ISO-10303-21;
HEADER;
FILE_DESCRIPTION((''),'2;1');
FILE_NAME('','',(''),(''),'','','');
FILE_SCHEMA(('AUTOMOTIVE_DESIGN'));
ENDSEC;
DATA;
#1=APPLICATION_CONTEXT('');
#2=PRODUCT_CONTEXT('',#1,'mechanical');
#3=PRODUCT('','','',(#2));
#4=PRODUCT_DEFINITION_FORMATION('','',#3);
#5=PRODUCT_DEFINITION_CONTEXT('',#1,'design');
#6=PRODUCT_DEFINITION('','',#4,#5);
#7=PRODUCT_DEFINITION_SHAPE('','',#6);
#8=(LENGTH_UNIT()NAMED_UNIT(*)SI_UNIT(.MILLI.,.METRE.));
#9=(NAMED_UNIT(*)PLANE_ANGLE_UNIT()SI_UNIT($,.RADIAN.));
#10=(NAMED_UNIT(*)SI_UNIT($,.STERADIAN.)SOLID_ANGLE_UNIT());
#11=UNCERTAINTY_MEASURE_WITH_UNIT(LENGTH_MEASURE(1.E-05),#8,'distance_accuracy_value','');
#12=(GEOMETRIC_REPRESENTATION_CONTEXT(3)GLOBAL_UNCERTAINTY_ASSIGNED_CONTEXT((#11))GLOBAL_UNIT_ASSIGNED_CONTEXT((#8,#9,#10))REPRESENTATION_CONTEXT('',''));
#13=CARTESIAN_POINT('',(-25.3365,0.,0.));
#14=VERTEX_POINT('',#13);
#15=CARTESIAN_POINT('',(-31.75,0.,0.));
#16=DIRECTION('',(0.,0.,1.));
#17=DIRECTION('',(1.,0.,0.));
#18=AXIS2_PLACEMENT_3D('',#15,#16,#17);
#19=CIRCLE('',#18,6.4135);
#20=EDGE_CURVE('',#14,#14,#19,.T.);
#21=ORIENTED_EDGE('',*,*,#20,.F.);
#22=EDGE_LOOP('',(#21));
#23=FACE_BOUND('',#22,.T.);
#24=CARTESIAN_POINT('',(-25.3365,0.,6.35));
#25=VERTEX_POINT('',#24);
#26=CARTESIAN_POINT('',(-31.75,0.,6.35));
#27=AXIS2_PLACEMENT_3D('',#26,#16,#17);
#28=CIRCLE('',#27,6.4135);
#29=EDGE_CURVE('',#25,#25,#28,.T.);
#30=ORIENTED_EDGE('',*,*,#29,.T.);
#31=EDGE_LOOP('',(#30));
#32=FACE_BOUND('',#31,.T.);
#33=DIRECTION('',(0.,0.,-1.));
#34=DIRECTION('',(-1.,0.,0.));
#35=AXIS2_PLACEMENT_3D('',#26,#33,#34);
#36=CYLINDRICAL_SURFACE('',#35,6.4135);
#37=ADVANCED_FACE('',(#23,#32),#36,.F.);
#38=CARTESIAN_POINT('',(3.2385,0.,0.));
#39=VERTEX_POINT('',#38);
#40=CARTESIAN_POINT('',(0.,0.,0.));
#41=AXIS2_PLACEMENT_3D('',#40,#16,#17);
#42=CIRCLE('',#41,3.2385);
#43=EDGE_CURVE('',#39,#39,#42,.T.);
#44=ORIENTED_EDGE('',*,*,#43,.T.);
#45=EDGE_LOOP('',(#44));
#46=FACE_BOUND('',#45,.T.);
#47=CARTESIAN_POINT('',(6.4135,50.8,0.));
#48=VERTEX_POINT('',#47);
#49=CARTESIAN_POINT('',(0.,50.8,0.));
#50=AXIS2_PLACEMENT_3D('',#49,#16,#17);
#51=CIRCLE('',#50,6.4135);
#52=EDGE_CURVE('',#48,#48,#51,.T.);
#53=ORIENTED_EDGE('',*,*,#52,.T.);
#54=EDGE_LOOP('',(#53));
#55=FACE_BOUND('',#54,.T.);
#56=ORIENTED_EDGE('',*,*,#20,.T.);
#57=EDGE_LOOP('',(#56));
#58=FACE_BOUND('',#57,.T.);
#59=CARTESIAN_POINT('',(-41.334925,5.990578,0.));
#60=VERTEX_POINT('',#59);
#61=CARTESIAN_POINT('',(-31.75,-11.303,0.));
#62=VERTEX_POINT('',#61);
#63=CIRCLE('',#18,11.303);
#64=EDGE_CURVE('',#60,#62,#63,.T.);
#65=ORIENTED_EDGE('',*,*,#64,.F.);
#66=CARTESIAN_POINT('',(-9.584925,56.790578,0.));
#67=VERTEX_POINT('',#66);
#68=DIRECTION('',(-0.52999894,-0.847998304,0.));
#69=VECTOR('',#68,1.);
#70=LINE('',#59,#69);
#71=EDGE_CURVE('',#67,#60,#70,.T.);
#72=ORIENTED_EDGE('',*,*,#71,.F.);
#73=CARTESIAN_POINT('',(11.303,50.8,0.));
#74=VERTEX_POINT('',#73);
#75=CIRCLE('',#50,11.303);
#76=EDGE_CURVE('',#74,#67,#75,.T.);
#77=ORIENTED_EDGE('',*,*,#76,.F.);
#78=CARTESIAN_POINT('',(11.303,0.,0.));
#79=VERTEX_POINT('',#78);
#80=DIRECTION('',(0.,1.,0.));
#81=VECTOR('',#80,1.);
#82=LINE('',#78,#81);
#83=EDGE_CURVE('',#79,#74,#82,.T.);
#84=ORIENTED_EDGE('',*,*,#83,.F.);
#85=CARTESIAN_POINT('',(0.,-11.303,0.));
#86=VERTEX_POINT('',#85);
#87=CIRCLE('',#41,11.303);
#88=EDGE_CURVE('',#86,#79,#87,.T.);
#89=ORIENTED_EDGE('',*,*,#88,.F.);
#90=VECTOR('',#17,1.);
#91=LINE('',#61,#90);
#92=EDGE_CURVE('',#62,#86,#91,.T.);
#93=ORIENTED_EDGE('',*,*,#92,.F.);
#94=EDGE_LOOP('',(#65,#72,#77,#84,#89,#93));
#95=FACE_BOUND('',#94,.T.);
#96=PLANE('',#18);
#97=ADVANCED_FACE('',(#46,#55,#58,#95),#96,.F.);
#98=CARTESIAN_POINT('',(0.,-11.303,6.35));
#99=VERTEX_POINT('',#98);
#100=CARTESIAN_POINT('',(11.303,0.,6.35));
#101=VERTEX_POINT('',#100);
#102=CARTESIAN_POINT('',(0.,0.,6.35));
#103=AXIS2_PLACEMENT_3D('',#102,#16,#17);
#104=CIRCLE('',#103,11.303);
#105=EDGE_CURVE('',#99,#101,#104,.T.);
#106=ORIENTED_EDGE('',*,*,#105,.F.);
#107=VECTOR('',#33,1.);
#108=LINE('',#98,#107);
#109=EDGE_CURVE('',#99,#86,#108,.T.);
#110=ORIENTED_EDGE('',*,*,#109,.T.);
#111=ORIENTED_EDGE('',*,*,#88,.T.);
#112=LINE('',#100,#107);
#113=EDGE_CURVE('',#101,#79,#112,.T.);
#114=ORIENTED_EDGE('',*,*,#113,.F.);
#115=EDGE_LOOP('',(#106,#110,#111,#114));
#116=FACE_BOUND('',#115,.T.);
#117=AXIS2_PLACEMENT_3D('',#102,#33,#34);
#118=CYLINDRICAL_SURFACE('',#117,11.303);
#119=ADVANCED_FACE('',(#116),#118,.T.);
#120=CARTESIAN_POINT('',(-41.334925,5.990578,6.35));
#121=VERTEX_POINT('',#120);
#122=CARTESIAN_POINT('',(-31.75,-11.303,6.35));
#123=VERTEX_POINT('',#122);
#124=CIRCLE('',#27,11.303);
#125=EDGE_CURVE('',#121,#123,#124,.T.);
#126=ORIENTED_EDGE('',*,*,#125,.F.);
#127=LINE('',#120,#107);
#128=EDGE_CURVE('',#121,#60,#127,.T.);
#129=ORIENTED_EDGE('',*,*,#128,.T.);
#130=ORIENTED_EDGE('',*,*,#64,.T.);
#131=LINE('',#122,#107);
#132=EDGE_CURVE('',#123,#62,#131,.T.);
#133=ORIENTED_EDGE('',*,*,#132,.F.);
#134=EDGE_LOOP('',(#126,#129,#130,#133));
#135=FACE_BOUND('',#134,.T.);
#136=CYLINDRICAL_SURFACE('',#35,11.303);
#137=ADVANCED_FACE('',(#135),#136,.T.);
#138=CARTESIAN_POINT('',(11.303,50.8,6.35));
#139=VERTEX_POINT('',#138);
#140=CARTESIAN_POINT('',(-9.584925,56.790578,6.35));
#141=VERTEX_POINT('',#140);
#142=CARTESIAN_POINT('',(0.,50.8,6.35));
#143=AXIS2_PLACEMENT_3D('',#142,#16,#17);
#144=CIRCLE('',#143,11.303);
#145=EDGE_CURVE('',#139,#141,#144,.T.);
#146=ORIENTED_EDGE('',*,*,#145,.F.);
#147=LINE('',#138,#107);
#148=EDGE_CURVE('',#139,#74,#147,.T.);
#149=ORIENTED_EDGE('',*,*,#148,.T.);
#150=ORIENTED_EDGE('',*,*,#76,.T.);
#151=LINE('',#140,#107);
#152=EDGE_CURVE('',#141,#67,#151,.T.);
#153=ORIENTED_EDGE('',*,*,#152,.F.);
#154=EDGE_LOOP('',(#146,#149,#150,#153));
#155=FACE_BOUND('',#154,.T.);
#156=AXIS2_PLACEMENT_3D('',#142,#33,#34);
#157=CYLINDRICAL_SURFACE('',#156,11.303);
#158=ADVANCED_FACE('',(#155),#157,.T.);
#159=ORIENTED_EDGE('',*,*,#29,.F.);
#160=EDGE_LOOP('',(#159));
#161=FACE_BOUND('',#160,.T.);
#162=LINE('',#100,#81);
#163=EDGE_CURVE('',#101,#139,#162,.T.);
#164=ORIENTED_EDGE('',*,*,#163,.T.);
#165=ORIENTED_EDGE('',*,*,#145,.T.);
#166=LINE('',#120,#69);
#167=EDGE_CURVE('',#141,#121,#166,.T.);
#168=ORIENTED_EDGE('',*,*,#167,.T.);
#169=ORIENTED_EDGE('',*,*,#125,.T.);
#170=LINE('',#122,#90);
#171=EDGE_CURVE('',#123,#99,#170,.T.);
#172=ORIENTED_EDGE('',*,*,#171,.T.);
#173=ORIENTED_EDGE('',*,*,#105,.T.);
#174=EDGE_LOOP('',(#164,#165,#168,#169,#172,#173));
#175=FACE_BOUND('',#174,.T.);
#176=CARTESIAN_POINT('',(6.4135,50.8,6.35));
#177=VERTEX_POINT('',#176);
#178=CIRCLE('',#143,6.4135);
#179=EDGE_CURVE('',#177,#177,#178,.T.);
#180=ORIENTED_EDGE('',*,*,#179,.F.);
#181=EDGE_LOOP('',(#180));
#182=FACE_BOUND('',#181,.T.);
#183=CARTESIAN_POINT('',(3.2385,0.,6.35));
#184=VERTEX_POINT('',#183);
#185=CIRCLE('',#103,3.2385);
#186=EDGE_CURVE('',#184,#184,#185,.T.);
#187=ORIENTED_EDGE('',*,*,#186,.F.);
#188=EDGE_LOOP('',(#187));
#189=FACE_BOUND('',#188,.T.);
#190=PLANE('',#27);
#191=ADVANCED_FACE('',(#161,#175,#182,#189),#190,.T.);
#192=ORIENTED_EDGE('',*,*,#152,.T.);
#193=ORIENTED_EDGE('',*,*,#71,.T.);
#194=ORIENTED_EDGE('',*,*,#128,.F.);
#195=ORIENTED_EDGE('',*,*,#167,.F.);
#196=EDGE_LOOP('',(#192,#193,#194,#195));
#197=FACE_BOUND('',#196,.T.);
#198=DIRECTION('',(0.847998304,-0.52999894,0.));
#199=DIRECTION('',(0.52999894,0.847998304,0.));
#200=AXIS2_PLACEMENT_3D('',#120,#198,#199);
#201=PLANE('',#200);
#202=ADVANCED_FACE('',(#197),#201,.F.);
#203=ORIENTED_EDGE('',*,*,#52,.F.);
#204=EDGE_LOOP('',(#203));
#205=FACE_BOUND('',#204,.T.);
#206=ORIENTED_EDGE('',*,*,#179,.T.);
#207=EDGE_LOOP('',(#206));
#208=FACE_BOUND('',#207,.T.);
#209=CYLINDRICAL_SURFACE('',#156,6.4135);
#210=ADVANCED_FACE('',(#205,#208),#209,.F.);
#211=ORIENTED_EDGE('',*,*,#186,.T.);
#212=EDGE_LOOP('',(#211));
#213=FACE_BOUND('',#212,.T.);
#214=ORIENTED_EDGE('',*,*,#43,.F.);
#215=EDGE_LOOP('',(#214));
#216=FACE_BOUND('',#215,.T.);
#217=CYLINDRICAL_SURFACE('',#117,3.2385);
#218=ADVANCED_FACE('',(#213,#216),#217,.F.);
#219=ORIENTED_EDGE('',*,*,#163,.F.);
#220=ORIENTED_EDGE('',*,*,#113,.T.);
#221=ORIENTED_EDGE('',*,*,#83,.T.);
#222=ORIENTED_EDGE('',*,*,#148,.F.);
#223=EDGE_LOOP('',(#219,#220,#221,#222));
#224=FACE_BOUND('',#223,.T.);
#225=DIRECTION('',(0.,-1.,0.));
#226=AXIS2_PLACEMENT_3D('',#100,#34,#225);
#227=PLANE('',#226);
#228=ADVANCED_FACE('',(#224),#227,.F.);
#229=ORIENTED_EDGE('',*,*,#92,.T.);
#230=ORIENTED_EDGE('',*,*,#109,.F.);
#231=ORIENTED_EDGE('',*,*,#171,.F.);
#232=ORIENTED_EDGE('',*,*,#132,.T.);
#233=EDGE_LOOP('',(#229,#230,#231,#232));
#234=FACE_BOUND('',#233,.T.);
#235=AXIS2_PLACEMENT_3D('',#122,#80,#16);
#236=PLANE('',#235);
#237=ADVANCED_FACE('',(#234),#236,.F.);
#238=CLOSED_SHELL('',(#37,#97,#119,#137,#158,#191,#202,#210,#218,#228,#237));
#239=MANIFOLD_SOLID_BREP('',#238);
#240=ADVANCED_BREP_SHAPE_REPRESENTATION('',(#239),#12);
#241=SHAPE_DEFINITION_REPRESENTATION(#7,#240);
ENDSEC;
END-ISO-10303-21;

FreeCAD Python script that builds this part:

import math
import FreeCAD as App
import Part
import Sketcher
from FreeCAD import Vector
Q = App.Units.Quantity

doc = App.newDocument("Part")
body = doc.addObject("PartDesign::Body", "Body")

sketch1 = body.newObject("Sketcher::SketchObject", "Sketch")
sketch1.AttachmentSupport = (doc.getObject("XY_Plane"), [""])
sketch1.MapMode = "FlatFace"
sketch1.addGeometry([
    Part.LineSegment(Vector(-9.6, 56.8, 0), Vector(-41.3, 6, 0)),
    Part.ArcOfCircle(Part.Circle(Vector(-31.8, 0, 0), Vector(0, 0, 1), 11.3), math.radians(148), math.radians(270)),
    Part.LineSegment(Vector(-31.8, -11.3, 0), Vector(0, -11.3, 0)),
    Part.ArcOfCircle(Part.Circle(Vector(0, 0, 0), Vector(0, 0, 1), 11.3), math.radians(-90), math.radians(0)),
    Part.LineSegment(Vector(11.3, 0, 0), Vector(11.3, 50.8, 0)),
    Part.ArcOfCircle(Part.Circle(Vector(0, 50.8, 0), Vector(0, 0, 1), 11.3), math.radians(0), math.radians(148)),
    Part.Circle(Vector(0, 0, 0), Vector(0, 0, 1), 3.2),
    Part.Circle(Vector(-31.8, 0, 0), Vector(0, 0, 1), 6.4),
    Part.Circle(Vector(0, 50.8, 0), Vector(0, 0, 1), 6.4),
], False)
sketch1.addConstraint([
    Sketcher.Constraint("Tangent", 0, 2, 1, 1),
    Sketcher.Constraint("Tangent", 1, 2, 2, 1),
    Sketcher.Constraint("Tangent", 2, 2, 3, 1),
    Sketcher.Constraint("Tangent", 3, 2, 4, 1),
    Sketcher.Constraint("Tangent", 4, 2, 5, 1),
    Sketcher.Constraint("Tangent", 5, 2, 0, 1),
    Sketcher.Constraint("Horizontal", 2),
    Sketcher.Constraint("Vertical", 4),
    Sketcher.Constraint("Coincident", 3, 3, -1, 1),
    Sketcher.Constraint("Coincident", 6, 3, -1, 1),
    Sketcher.Constraint("Coincident", 7, 3, 1, 3),
    Sketcher.Constraint("Coincident", 8, 3, 5, 3),
    Sketcher.Constraint("Equal", 1, 3),
    Sketcher.Constraint("Equal", 3, 5),
    Sketcher.Constraint("Equal", 7, 8),
    Sketcher.Constraint("DistanceY", 4, 1, 4, 2, Q("2 in")),
    Sketcher.Constraint("Diameter", 6, Q("0.255 in")),
    Sketcher.Constraint("Diameter", 7, Q("0.505 in")),
    Sketcher.Constraint("Radius", 1, Q("0.445 in")),
    Sketcher.Constraint("DistanceX", 2, 1, 2, 2, Q("1.25 in")),
])
pad1 = body.newObject("PartDesign::Pad", "Pad")
pad1.Profile = sketch1
pad1.Length = Q("0.25 in")

doc.recompute()
